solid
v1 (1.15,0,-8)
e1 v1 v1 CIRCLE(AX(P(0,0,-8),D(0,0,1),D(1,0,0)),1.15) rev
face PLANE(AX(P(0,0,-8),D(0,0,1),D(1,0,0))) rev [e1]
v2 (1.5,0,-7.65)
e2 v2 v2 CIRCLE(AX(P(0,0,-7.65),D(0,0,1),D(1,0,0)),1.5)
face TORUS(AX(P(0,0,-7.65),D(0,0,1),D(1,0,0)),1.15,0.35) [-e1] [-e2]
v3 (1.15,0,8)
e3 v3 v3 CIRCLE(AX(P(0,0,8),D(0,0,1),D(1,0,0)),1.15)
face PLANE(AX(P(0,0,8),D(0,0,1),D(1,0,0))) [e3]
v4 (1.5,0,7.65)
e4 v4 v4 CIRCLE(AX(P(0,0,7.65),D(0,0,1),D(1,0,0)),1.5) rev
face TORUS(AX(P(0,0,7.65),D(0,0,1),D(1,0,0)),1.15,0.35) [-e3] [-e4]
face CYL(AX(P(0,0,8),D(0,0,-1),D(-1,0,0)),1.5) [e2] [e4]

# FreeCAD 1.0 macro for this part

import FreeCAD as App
import Part
import Sketcher

V = App.Vector


def edges_at(feature, points):
    """Names of the edges that pass closest to the given points."""
    edges = feature.Shape.Edges
    near = lambda p: min(range(len(edges)), key=lambda i: edges[i].distToShape(Part.Vertex(*p))[0])
    return sorted({f"Edge{near(p) + 1}" for p in points})

doc = App.newDocument("Part")
body = doc.addObject("PartDesign::Body", "Body")

# Sketch on XY plane
sketch1 = doc.addObject("Sketcher::SketchObject", "Sketch")
body.addObject(sketch1)
sketch1.AttachmentSupport = (doc.XY_Plane, [""])
sketch1.MapMode = "FlatFace"
sketch1.addGeometry(Part.Circle(V(0, 0, 0), V(0, 0, 1), 1.5), False)
sketch1.addConstraint([
    Sketcher.Constraint("Coincident", 0, 3, -1, 1),
    Sketcher.Constraint("Diameter", 0, 3.0),
])
pad1 = doc.addObject("PartDesign::Pad", "Pad")
body.addObject(pad1)
pad1.Profile = sketch1
pad1.Length = 16
pad1.Midplane = True
doc.recompute()

fillet = doc.addObject("PartDesign::Fillet", "Fillet")
body.addObject(fillet)
fillet.Base = (pad1, edges_at(pad1, [(-1.5, 0, -8), (-1.5, 0, 8)]))
fillet.Radius = 0.35

doc.recompute()
